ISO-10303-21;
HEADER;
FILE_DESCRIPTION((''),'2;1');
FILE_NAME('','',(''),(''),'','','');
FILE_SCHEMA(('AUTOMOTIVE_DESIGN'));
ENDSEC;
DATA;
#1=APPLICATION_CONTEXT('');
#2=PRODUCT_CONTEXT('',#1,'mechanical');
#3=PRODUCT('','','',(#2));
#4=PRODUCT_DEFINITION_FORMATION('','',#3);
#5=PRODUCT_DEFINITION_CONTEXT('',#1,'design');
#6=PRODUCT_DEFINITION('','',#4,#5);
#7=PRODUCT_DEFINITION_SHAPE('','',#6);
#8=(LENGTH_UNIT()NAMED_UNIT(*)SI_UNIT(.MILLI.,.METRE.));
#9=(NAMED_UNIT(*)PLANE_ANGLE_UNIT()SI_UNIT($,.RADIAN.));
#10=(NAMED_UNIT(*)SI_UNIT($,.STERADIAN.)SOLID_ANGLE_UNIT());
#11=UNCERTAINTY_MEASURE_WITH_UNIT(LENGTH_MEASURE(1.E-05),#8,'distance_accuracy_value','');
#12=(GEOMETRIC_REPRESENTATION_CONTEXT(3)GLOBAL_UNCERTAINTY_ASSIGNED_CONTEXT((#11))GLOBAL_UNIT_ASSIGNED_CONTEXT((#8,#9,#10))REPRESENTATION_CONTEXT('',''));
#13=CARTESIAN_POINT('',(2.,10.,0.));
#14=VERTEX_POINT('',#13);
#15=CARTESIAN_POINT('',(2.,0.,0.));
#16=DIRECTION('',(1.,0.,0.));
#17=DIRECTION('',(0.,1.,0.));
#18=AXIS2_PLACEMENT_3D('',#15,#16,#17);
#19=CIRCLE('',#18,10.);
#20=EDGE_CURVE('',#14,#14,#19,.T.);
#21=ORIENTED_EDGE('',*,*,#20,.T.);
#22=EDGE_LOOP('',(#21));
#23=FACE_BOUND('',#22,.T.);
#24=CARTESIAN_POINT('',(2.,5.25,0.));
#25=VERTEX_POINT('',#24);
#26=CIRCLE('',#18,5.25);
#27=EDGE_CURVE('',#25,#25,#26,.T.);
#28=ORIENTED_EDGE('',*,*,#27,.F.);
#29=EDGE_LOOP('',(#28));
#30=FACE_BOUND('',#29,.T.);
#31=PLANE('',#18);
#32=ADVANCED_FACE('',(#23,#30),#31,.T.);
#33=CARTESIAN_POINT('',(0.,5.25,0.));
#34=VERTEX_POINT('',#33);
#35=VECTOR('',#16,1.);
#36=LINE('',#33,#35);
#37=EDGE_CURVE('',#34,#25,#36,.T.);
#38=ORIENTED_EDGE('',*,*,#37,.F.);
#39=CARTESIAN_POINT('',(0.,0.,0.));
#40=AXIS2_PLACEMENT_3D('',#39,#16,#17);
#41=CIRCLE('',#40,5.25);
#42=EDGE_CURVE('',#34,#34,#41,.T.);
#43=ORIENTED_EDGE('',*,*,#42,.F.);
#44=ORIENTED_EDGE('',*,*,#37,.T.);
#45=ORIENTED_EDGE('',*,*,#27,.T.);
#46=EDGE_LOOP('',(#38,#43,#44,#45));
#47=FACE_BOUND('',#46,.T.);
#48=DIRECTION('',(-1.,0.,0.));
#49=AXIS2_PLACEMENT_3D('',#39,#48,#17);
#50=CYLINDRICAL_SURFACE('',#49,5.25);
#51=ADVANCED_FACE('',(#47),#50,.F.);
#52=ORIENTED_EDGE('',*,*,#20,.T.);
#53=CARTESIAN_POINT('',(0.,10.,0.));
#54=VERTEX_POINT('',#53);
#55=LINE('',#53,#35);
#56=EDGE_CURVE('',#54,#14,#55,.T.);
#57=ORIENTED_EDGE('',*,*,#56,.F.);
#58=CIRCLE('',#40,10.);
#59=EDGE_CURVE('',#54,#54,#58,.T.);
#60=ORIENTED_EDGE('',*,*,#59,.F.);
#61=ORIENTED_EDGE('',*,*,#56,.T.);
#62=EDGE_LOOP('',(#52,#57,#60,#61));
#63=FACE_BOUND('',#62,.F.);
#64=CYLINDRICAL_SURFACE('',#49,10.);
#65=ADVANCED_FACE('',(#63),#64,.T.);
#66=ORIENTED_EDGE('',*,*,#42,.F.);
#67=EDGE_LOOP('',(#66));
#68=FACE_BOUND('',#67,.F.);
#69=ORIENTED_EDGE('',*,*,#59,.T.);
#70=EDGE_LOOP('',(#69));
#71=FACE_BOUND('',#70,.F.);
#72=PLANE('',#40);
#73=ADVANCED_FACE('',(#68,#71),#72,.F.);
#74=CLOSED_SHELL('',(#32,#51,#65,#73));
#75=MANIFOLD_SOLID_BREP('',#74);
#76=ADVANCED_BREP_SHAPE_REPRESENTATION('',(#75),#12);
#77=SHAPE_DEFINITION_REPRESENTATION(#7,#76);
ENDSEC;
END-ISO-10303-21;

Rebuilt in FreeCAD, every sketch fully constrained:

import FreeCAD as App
import Part
import Sketcher
from FreeCAD import Vector

doc = App.newDocument("Part")
body = doc.addObject("PartDesign::Body", "Body")

sketch1 = body.newObject("Sketcher::SketchObject", "Sketch")
sketch1.AttachmentSupport = (doc.getObject("YZ_Plane"), [""])
sketch1.MapMode = "FlatFace"
sketch1.addGeometry([
    Part.Circle(Vector(0, 0, 0), Vector(0, 0, 1), 10),
    Part.Circle(Vector(0, 0, 0), Vector(0, 0, 1), 5),
], False)
sketch1.addConstraint([
    Sketcher.Constraint("Coincident", 0, 3, -1, 1),
    Sketcher.Constraint("Coincident", 1, 3, -1, 1),
    Sketcher.Constraint("Diameter", 0, 20.0),
    Sketcher.Constraint("Diameter", 1, 10.5),
])
pad1 = body.newObject("PartDesign::Pad", "Pad")
pad1.Profile = sketch1
pad1.Length = 2

doc.recompute()
